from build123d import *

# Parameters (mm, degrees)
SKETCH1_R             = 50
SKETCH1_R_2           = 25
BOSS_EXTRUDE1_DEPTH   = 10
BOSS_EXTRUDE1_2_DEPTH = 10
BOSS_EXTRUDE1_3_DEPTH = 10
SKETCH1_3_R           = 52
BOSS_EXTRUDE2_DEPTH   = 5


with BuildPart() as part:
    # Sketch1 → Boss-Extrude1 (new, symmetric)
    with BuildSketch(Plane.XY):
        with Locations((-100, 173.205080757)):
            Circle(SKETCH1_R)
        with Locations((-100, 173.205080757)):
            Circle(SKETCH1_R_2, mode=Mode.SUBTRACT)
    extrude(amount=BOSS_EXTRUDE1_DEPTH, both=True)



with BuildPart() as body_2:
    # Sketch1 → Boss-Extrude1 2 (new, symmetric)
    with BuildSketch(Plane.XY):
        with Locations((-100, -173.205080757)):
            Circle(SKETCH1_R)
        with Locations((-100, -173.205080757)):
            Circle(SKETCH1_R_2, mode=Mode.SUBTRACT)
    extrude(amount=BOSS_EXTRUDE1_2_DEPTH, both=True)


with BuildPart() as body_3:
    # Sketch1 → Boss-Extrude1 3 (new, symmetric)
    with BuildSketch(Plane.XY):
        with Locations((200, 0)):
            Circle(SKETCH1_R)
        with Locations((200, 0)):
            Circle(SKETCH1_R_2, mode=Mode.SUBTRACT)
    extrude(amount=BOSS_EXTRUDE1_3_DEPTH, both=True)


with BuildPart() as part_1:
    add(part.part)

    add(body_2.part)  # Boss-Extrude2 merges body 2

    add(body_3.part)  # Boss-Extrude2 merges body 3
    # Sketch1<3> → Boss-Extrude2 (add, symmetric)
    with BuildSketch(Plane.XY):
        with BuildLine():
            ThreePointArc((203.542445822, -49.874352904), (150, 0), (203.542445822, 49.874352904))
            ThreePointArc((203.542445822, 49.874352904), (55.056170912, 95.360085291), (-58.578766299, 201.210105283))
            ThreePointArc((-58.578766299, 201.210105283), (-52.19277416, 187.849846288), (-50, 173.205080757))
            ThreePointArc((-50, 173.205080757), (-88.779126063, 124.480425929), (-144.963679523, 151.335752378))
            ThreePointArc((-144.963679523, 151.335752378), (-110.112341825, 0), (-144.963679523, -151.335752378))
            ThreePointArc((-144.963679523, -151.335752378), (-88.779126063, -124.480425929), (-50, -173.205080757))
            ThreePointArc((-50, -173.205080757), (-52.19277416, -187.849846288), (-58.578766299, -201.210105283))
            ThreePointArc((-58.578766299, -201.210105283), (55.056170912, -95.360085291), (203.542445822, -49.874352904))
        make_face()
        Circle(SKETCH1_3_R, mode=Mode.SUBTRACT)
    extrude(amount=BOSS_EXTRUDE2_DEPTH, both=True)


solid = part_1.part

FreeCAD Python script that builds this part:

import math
import FreeCAD as App
import Part
import Sketcher

V = App.Vector
Q = App.Units.Quantity

doc = App.newDocument("Part")
body = doc.addObject("PartDesign::Body", "Body")

# Sketch on XY plane
sketch1 = body.newObject("Sketcher::SketchObject", "Sketch")
sketch1.AttachmentSupport = (doc.getObject("XY_Plane"), [""])
sketch1.MapMode = "FlatFace"
sketch1.addGeometry([
    Part.Circle(V(-100, 173, 0), V(0, 0, 1), 50),
    Part.Circle(V(-100, 173, 0), V(0, 0, 1), 25),
], False)
sketch1.addConstraint([
    Sketcher.Constraint("Coincident", 1, 3, 0, 3),
    Sketcher.Constraint("Diameter", 0, Q("100 mm")),
    Sketcher.Constraint("Diameter", 1, Q("50 mm")),
    Sketcher.Constraint("DistanceX", 0, 3, -1, 1, Q("100 mm")),
    Sketcher.Constraint("DistanceY", -1, 1, 0, 3, Q("173.205081 mm")),
])
pad1 = body.newObject("PartDesign::Pad", "Pad")
pad1.Profile = sketch1
pad1.Length = 20
pad1.Midplane = True
body2 = doc.addObject("PartDesign::Body", "Body001")

# Sketch on XY plane
sketch2 = body2.newObject("Sketcher::SketchObject", "Sketch001")
sketch2.AttachmentSupport = (doc.getObject("XY_Plane001"), [""])
sketch2.MapMode = "FlatFace"
sketch2.addGeometry([
    Part.Circle(V(-100, -173, 0), V(0, 0, 1), 50),
    Part.Circle(V(-100, -173, 0), V(0, 0, 1), 25),
], False)
sketch2.addConstraint([
    Sketcher.Constraint("Coincident", 1, 3, 0, 3),
    Sketcher.Constraint("Diameter", 0, Q("100 mm")),
    Sketcher.Constraint("Diameter", 1, Q("50 mm")),
    Sketcher.Constraint("DistanceX", 0, 3, -1, 1, Q("100 mm")),
    Sketcher.Constraint("DistanceY", 0, 3, -1, 1, Q("173.205081 mm")),
])
pad2 = body2.newObject("PartDesign::Pad", "Pad001")
pad2.Profile = sketch2
pad2.Length = 20
pad2.Midplane = True
body3 = doc.addObject("PartDesign::Body", "Body002")

# Sketch on XY plane
sketch3 = body3.newObject("Sketcher::SketchObject", "Sketch002")
sketch3.AttachmentSupport = (doc.getObject("XY_Plane002"), [""])
sketch3.MapMode = "FlatFace"
sketch3.addGeometry([
    Part.Circle(V(200, 0, 0), V(0, 0, 1), 50),
    Part.Circle(V(200, 0, 0), V(0, 0, 1), 25),
], False)
sketch3.addConstraint([
    Sketcher.Constraint("Coincident", 1, 3, 0, 3),
    Sketcher.Constraint("PointOnObject", 0, 3, -1),
    Sketcher.Constraint("Diameter", 0, Q("100 mm")),
    Sketcher.Constraint("Diameter", 1, Q("50 mm")),
    Sketcher.Constraint("DistanceX", -1, 1, 0, 3, Q("200 mm")),
])
pad3 = body3.newObject("PartDesign::Pad", "Pad002")
pad3.Profile = sketch3
pad3.Length = 20
pad3.Midplane = True
body.AllowCompound = True
doc.recompute()

boolean = body.newObject("PartDesign::Boolean", "Boolean")
boolean.Type = "Fuse"
boolean.addObjects([body2])
doc.recompute()

boolean2 = body.newObject("PartDesign::Boolean", "Boolean001")
boolean2.Type = "Fuse"
boolean2.addObjects([body3])

# Sketch on XY plane
sketch4 = body.newObject("Sketcher::SketchObject", "Sketch003")
sketch4.AttachmentSupport = (doc.getObject("XY_Plane"), [""])
sketch4.MapMode = "FlatFace"
sketch4.addGeometry([
    Part.ArcOfCircle(Part.Circle(V(200, 0, 0), V(0, 0, 1), 50), math.radians(86), math.radians(274)),  # 0
    Part.ArcOfCircle(Part.Circle(V(228, 395, 0), V(0, 0, 1), 346), math.radians(-146), math.radians(-94)),  # 1
    Part.ArcOfCircle(Part.Circle(V(-100, 173, 0), V(0, 0, 1), 50), math.radians(0), math.radians(34)),  # 2
    Part.ArcOfCircle(Part.Circle(V(-100, 173, 0), V(0, 0, 1), 50), math.radians(-154), math.radians(0)),  # 3
    Part.ArcOfCircle(Part.Circle(V(-456, 0, 0), V(0, 0, 1), 346), math.radians(-26), math.radians(26)),  # 4
    Part.ArcOfCircle(Part.Circle(V(-100, -173, 0), V(0, 0, 1), 50), math.radians(0), math.radians(154)),  # 5
    Part.ArcOfCircle(Part.Circle(V(-100, -173, 0), V(0, 0, 1), 50), math.radians(-34), math.radians(0)),  # 6
    Part.ArcOfCircle(Part.Circle(V(228, -395, 0), V(0, 0, 1), 346), math.radians(94), math.radians(146)),  # 7
    Part.Circle(V(0, 0, 0), V(0, 0, 1), 52),  # 8
], False)
sketch4.addConstraint([
    Sketcher.Constraint("Tangent", 0, 1, 1, 2),
    Sketcher.Constraint("Tangent", 1, 1, 2, 2),
    Sketcher.Constraint("Tangent", 2, 1, 3, 2),
    Sketcher.Constraint("Tangent", 3, 1, 4, 2),
    Sketcher.Constraint("Tangent", 4, 1, 5, 2),
    Sketcher.Constraint("Tangent", 5, 1, 6, 2),
    Sketcher.Constraint("Tangent", 6, 1, 7, 2),
    Sketcher.Constraint("Tangent", 7, 1, 0, 2),
    Sketcher.Constraint("Coincident", 8, 3, -1, 1),
    Sketcher.Constraint("Equal", 0, 2),
    Sketcher.Constraint("Equal", 2, 3),
    Sketcher.Constraint("Equal", 1, 4),
    Sketcher.Constraint("Equal", 3, 5),
    Sketcher.Constraint("Equal", 5, 6),
    Sketcher.Constraint("Equal", 4, 7),
    Sketcher.Constraint("Symmetric", 2, 3, 5, 3, -1),
    Sketcher.Constraint("PointOnObject", 0, 3, -1),
    Sketcher.Constraint("Horizontal", 3, 3, 2, 1),
    Sketcher.Constraint("Horizontal", 6, 3, 5, 1),
    Sketcher.Constraint("Diameter", 8, Q("104 mm")),
    Sketcher.Constraint("Radius", 0, Q("50 mm")),
    Sketcher.Constraint("Radius", 1, Q("346 mm")),
    Sketcher.Constraint("DistanceX", -1, 1, 0, 3, Q("200 mm")),
    Sketcher.Constraint("DistanceX", 2, 3, -1, 1, Q("100 mm")),
    Sketcher.Constraint("DistanceX", -1, 1, 1, 3, Q("228.056171 mm")),
])
pad4 = body.newObject("PartDesign::Pad", "Pad003")
pad4.Profile = sketch4
pad4.Length = 10
pad4.Midplane = True

doc.recompute()
